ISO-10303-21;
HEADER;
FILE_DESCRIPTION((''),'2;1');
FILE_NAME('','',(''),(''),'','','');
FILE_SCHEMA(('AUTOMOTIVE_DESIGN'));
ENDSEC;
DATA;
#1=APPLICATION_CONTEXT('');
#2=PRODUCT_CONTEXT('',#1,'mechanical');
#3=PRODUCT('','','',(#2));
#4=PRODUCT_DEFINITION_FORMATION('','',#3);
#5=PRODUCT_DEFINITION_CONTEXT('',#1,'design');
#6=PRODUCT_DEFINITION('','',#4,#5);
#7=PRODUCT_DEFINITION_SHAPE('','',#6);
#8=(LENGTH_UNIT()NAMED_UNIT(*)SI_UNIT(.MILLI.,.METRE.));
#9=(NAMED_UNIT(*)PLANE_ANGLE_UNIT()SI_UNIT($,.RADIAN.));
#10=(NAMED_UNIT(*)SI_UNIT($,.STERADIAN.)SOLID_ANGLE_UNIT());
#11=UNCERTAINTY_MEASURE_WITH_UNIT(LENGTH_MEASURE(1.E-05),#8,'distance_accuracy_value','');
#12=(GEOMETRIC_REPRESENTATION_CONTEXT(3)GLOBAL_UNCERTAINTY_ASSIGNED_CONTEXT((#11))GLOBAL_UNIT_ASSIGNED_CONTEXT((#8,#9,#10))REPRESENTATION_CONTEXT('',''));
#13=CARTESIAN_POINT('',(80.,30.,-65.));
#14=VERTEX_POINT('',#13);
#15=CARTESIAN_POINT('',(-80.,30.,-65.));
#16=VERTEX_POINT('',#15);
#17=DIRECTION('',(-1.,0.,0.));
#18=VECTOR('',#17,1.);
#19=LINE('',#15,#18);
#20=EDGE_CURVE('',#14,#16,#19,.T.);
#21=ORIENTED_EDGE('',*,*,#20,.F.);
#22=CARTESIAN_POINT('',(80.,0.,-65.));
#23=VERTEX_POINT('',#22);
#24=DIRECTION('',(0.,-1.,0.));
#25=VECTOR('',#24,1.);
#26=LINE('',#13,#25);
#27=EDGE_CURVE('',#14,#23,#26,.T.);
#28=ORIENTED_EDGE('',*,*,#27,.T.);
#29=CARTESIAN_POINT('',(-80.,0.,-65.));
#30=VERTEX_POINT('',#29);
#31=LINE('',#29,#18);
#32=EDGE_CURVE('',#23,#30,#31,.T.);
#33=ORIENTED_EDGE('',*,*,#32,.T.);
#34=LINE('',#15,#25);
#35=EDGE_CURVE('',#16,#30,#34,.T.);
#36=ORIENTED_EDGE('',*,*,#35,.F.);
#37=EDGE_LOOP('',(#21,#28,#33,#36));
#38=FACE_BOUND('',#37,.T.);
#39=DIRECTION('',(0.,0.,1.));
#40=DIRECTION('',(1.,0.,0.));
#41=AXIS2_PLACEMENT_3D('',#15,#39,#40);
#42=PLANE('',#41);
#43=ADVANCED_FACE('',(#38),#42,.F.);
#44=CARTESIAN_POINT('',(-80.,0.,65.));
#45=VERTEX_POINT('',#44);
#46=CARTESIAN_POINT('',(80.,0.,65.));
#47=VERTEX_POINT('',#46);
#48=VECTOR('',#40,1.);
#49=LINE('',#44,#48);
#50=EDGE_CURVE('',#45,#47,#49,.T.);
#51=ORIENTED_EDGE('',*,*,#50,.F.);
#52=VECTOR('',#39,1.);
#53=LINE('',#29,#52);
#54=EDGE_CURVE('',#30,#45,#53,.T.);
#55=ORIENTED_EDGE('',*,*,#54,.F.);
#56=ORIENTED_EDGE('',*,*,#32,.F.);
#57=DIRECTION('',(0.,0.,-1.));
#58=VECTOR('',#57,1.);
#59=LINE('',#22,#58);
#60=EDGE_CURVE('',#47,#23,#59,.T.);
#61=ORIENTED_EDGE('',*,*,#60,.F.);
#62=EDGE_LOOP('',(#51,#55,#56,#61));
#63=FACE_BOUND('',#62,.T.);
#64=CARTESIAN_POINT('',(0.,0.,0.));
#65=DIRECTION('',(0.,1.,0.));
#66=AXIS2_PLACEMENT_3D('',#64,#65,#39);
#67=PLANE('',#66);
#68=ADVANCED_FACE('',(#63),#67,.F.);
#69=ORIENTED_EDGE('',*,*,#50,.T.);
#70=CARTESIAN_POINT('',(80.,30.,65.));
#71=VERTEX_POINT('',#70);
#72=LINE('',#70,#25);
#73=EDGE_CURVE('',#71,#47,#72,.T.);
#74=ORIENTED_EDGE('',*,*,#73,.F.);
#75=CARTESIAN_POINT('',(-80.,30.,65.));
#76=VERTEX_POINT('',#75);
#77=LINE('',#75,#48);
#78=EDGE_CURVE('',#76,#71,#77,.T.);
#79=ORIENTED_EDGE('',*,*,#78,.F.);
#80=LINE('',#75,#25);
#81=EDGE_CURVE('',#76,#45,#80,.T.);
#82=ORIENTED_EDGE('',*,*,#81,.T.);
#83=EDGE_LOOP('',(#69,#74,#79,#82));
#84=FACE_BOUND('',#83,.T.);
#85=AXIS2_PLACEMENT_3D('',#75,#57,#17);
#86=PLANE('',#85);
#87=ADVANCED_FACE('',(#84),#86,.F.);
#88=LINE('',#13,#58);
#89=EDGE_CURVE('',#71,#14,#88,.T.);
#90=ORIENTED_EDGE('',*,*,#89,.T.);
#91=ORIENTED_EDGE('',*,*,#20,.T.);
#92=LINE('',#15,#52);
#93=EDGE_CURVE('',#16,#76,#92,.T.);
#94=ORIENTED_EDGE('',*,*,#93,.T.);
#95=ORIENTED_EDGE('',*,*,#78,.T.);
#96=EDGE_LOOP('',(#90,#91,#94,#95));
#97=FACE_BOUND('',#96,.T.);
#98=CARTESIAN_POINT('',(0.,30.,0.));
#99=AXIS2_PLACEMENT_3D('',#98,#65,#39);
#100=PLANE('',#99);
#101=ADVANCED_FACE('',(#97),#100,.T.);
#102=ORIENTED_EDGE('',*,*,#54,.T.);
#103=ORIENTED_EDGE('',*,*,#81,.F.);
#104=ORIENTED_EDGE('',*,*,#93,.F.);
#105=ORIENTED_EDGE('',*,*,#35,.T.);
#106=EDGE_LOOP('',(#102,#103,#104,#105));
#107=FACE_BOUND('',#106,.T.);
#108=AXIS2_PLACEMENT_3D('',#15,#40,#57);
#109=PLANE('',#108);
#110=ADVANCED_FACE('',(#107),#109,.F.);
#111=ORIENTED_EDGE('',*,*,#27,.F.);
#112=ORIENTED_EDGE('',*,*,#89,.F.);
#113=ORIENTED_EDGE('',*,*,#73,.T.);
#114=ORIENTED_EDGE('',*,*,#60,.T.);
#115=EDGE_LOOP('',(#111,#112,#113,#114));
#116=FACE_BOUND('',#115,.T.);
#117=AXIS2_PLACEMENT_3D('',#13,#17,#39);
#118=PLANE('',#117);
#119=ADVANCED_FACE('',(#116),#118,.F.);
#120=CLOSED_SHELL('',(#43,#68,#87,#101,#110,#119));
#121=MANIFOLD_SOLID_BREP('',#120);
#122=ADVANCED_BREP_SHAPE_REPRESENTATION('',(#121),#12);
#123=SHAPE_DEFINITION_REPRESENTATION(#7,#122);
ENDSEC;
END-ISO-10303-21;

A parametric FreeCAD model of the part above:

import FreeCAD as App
import Part
import Sketcher


def add_polygon(sketch, points):
    """Adds a closed chain of lines whose ends are joined by coincident constraints."""
    first, n = sketch.GeometryCount, len(points)
    for a, b in zip(points, points[1:] + points[:1]):
        sketch.addGeometry(Part.LineSegment(App.Vector(*a, 0), App.Vector(*b, 0)), False)
    for i in range(n):
        sketch.addConstraint(Sketcher.Constraint("Coincident", first + i, 2, first + (i + 1) % n, 1))

doc = App.newDocument("Part")
params = doc.addObject("Spreadsheet::Sheet", "Params")
for row, (alias, value) in enumerate([
    ("sketch1_width", "160 mm"),
    ("sketch1_height", "130 mm"),
    ("pad1_length", "30 mm"),
], start=1):
    params.set(f"A{row}", alias)
    params.set(f"B{row}", "=" + value)
    params.setAlias(f"B{row}", alias)

body = doc.addObject("PartDesign::Body", "Body")

# Sketch on XZ plane
sketch1 = doc.addObject("Sketcher::SketchObject", "Sketch")
body.addObject(sketch1)
sketch1.AttachmentSupport = (doc.XZ_Plane, [""])
sketch1.MapMode = "FlatFace"
add_polygon(sketch1, [(-80, -65), (-80, 65), (80, 65), (80, -65)])  # lines 0-3
sketch1.addConstraint(Sketcher.Constraint("Vertical", 0))
sketch1.addConstraint(Sketcher.Constraint("Horizontal", 1))
sketch1.addConstraint(Sketcher.Constraint("Vertical", 2))
sketch1.addConstraint(Sketcher.Constraint("Horizontal", 3))
sketch1.addConstraint(Sketcher.Constraint("Symmetric", 0, 2, 2, 2, -1, 1))
sketch1.addConstraint(Sketcher.Constraint("DistanceX", 1, 1, 1, 2, 160.0))
sketch1.addConstraint(Sketcher.Constraint("DistanceY", 0, 1, 0, 2, 130.0))
sketch1.setExpression("Constraints[9]", "Params.sketch1_width")
sketch1.setExpression("Constraints[10]", "Params.sketch1_height")
pad1 = doc.addObject("PartDesign::Pad", "Pad")
body.addObject(pad1)
pad1.Profile = sketch1
pad1.setExpression("Length", "Params.pad1_length")
pad1.Reversed = True

doc.recompute()
